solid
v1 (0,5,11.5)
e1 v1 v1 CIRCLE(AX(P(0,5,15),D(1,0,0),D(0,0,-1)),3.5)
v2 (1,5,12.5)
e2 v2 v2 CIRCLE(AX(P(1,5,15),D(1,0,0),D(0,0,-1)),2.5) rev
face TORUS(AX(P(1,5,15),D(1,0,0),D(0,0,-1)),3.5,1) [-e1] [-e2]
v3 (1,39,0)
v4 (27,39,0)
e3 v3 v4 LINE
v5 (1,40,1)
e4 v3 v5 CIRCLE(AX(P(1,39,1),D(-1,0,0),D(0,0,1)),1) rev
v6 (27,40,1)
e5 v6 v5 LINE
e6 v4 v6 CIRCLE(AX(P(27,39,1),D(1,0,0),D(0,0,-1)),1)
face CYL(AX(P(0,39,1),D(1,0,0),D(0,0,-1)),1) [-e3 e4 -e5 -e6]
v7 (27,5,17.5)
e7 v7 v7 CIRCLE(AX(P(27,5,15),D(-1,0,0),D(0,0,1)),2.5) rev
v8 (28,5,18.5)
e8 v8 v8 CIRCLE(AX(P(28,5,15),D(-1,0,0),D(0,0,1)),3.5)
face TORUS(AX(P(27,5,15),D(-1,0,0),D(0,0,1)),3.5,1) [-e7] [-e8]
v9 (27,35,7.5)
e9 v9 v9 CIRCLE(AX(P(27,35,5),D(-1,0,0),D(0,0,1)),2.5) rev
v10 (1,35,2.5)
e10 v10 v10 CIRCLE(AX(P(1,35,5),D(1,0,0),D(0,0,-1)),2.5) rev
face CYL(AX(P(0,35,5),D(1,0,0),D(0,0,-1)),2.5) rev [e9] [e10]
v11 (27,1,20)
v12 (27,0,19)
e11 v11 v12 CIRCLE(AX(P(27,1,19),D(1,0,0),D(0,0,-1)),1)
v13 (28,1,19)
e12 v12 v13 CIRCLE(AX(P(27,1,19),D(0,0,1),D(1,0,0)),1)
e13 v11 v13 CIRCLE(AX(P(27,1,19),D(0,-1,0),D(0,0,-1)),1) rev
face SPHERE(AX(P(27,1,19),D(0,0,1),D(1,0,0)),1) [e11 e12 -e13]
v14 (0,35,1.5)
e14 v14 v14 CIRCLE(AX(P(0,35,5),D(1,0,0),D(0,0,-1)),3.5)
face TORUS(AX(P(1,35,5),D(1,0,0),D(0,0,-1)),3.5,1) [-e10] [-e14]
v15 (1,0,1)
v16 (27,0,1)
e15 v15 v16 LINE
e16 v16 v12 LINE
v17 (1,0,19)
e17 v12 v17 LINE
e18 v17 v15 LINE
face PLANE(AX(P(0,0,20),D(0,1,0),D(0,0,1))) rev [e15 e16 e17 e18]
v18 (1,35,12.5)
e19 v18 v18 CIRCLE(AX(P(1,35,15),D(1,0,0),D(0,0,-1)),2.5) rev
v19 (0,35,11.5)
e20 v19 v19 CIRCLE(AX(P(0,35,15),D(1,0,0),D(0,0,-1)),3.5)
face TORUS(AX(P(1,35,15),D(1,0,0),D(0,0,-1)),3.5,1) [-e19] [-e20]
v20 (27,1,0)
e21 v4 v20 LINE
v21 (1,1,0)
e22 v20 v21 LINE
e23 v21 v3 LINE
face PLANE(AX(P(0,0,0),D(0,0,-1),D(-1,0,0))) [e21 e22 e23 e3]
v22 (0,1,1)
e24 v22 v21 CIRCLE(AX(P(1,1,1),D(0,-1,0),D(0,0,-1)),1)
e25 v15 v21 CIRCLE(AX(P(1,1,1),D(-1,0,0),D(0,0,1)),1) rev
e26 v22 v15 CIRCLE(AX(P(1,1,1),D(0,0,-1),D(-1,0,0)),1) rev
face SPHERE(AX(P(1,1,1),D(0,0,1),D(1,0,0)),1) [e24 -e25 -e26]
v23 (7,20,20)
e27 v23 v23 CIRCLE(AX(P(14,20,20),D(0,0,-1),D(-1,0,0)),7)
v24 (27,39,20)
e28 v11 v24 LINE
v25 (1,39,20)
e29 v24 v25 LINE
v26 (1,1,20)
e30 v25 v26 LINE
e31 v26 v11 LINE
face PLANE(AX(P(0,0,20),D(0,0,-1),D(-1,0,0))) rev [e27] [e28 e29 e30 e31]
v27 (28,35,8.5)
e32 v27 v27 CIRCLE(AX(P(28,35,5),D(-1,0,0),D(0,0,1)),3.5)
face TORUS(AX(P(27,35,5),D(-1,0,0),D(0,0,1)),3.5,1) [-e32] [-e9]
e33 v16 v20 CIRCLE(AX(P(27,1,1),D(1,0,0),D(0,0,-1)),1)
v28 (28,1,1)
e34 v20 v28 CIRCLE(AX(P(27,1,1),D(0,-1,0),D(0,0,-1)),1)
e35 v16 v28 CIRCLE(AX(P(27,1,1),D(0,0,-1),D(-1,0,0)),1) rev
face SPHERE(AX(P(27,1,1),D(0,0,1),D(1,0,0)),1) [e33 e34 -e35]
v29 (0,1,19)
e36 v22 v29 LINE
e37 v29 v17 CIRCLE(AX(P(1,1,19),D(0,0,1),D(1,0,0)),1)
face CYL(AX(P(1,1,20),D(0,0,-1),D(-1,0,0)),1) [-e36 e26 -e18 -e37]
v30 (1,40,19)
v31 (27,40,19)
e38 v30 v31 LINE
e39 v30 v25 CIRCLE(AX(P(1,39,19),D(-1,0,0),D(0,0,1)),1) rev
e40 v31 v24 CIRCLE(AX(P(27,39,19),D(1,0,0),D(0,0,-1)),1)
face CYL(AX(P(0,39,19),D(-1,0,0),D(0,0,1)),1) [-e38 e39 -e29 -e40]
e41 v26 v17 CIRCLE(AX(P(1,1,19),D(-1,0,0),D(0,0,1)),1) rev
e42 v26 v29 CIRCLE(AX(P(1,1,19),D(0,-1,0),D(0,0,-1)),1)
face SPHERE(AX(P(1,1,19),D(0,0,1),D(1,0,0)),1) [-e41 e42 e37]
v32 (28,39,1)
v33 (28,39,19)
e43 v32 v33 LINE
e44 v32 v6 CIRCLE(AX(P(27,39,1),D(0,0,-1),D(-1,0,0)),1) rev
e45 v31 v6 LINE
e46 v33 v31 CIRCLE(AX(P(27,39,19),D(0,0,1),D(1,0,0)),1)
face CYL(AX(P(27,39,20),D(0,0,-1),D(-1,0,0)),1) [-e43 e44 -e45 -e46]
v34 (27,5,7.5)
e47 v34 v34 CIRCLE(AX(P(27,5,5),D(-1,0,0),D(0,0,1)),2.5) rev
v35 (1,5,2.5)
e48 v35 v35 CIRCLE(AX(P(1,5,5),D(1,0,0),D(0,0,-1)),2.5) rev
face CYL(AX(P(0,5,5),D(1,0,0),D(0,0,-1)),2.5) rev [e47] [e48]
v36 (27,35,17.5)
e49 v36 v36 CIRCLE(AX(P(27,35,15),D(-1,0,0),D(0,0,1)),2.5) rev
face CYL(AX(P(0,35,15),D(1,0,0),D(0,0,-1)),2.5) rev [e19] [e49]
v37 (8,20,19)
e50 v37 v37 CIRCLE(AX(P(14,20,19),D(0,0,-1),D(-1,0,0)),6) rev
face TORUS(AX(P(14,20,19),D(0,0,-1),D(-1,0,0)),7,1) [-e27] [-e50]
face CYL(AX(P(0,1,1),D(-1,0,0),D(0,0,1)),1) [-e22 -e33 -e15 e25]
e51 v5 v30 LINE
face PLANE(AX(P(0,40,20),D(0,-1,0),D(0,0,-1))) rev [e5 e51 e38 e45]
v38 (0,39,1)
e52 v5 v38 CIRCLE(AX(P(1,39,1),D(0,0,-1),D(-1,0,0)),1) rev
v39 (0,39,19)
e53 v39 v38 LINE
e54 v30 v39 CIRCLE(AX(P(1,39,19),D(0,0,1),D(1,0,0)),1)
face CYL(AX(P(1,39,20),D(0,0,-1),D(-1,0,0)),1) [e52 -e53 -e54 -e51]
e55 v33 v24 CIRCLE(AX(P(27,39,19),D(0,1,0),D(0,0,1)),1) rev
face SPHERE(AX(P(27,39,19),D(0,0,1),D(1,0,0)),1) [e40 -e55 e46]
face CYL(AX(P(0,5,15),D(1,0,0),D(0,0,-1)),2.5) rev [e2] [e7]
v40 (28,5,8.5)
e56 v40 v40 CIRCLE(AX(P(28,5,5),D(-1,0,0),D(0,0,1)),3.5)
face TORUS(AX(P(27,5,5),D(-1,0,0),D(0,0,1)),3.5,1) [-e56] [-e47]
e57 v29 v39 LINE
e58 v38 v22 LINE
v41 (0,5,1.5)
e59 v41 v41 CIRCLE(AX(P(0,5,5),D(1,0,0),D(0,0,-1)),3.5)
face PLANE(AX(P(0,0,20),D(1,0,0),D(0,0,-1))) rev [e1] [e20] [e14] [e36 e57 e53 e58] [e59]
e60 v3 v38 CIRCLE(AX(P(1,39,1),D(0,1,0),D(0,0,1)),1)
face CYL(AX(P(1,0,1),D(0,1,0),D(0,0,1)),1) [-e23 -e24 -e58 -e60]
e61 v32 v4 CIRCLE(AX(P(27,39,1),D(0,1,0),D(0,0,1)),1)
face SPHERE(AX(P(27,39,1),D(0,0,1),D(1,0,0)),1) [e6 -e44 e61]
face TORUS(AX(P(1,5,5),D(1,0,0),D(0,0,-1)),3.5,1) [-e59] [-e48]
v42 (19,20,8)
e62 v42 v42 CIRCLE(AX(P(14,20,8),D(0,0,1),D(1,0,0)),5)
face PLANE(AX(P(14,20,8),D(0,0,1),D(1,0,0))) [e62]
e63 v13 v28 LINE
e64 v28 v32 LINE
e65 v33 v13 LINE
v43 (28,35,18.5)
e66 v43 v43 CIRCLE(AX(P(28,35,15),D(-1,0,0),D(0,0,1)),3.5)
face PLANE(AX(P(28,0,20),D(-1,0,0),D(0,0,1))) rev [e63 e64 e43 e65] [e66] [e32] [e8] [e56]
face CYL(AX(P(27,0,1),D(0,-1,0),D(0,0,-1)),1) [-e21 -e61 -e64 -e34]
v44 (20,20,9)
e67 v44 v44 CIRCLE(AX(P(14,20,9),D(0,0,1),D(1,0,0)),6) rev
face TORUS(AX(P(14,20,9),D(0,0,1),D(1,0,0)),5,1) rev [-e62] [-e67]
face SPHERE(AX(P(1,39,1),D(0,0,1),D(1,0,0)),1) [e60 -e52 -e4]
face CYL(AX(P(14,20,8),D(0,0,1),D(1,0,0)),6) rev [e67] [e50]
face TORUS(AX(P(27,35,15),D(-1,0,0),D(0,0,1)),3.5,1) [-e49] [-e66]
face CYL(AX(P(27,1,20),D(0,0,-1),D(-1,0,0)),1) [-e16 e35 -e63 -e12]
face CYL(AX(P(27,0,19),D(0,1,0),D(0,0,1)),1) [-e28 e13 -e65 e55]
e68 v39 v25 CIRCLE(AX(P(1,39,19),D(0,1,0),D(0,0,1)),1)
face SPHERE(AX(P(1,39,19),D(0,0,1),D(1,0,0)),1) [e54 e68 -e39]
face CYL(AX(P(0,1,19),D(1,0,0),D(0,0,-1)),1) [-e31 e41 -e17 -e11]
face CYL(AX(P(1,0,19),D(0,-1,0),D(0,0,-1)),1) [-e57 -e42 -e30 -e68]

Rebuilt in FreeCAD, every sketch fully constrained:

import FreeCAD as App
import Part
import Sketcher
from FreeCAD import Vector

doc = App.newDocument("Part")
params = doc.addObject("Spreadsheet::Sheet", "Params")
for row, (alias, value) in enumerate([
    ("sketch1_width", "28 mm"),
    ("sketch1_height", "40 mm"),
    ("pad1_length", "20 mm"),
    ("sketch2_diameter", "12 mm"),
    ("pocket1_length", "12 mm"),
    ("sketch3_diameter", "5 mm"),
    ("fillet_radius", "1 mm"),
], start=1):
    params.set(f"A{row}", alias)
    params.set(f"B{row}", "=" + value)
    params.setAlias(f"B{row}", alias)

body = doc.addObject("PartDesign::Body", "Body")

sketch1 = body.newObject("Sketcher::SketchObject", "Sketch")
sketch1.AttachmentSupport = (doc.getObject("XY_Plane"), [""])
sketch1.MapMode = "FlatFace"
sketch1.addGeometry([
    Part.LineSegment(Vector(0, 40, 0), Vector(0, 0, 0)),
    Part.LineSegment(Vector(0, 0, 0), Vector(28, 0, 0)),
    Part.LineSegment(Vector(28, 0, 0), Vector(28, 40, 0)),
    Part.LineSegment(Vector(28, 40, 0), Vector(0, 40, 0)),
], False)
sketch1.addConstraint([
    Sketcher.Constraint("Coincident", 0, 2, 1, 1),
    Sketcher.Constraint("Coincident", 1, 2, 2, 1),
    Sketcher.Constraint("Coincident", 2, 2, 3, 1),
    Sketcher.Constraint("Coincident", 3, 2, 0, 1),
    Sketcher.Constraint("Vertical", 0),
    Sketcher.Constraint("Horizontal", 1),
    Sketcher.Constraint("Vertical", 2),
    Sketcher.Constraint("Horizontal", 3),
    Sketcher.Constraint("Coincident", 0, 2, -1, 1),
    Sketcher.Constraint("DistanceX", 1, 1, 1, 2, 28.0),
    Sketcher.Constraint("DistanceY", 0, 2, 0, 1, 40.0),
])
sketch1.setExpression("Constraints[9]", "Params.sketch1_width")
sketch1.setExpression("Constraints[10]", "Params.sketch1_height")
pad1 = body.newObject("PartDesign::Pad", "Pad")
pad1.Profile = sketch1
pad1.setExpression("Length", "Params.pad1_length")

sketch2 = body.newObject("Sketcher::SketchObject", "Sketch001")
sketch2.AttachmentSupport = (doc.getObject("XY_Plane"), [""])
sketch2.MapMode = "FlatFace"
sketch2.AttachmentOffset = App.Placement(Vector(0, 0, 20), App.Rotation())
sketch2.addGeometry(Part.Circle(Vector(14, 20, 0), Vector(0, 0, 1), 6), False)
sketch2.addConstraint([
    Sketcher.Constraint("Diameter", 0, 12.0),
    Sketcher.Constraint("DistanceX", -1, 1, 0, 3, 14.0),
    Sketcher.Constraint("DistanceY", -1, 1, 0, 3, 20.0),
])
sketch2.setExpression("Constraints[0]", "Params.sketch2_diameter")
pocket1 = body.newObject("PartDesign::Pocket", "Pocket")
pocket1.Profile = sketch2
pocket1.setExpression("Length", "Params.pocket1_length")

sketch3 = body.newObject("Sketcher::SketchObject", "Sketch002")
sketch3.AttachmentSupport = (doc.getObject("YZ_Plane"), [""])
sketch3.MapMode = "FlatFace"
sketch3.AttachmentOffset = App.Placement(Vector(0, 0, 28), App.Rotation())
sketch3.addGeometry([
    Part.Circle(Vector(35, 15, 0), Vector(0, 0, 1), 2.5),
    Part.Circle(Vector(35, 5, 0), Vector(0, 0, 1), 2.5),
    Part.Circle(Vector(5, 5, 0), Vector(0, 0, 1), 2.5),
    Part.Circle(Vector(5, 15, 0), Vector(0, 0, 1), 2.5),
], False)
sketch3.addConstraint([
    Sketcher.Constraint("Equal", 0, 1),
    Sketcher.Constraint("Equal", 1, 2),
    Sketcher.Constraint("Equal", 2, 3),
    Sketcher.Constraint("Horizontal", 1, 3, 2, 3),
    Sketcher.Constraint("Horizontal", 0, 3, 3, 3),
    Sketcher.Constraint("Vertical", 0, 3, 1, 3),
    Sketcher.Constraint("Vertical", 2, 3, 3, 3),
    Sketcher.Constraint("Diameter", 0, 5.0),
    Sketcher.Constraint("DistanceX", -1, 1, 0, 3, 35.0),
    Sketcher.Constraint("DistanceY", -1, 1, 0, 3, 15.0),
    Sketcher.Constraint("DistanceY", -1, 1, 1, 3, 5.0),
    Sketcher.Constraint("DistanceX", -1, 1, 2, 3, 5.0),
])
sketch3.setExpression("Constraints[7]", "Params.sketch3_diameter")
pocket2 = body.newObject("PartDesign::Pocket", "Pocket001")
pocket2.Profile = sketch3
pocket2.Type = "ThroughAll"
doc.recompute()

fillet = body.newObject("PartDesign::Fillet", "Fillet")
fillet.Base = (pocket2, ["Edge1"])
fillet.UseAllEdges = True
fillet.setExpression("Radius", "Params.fillet_radius")

doc.recompute()
